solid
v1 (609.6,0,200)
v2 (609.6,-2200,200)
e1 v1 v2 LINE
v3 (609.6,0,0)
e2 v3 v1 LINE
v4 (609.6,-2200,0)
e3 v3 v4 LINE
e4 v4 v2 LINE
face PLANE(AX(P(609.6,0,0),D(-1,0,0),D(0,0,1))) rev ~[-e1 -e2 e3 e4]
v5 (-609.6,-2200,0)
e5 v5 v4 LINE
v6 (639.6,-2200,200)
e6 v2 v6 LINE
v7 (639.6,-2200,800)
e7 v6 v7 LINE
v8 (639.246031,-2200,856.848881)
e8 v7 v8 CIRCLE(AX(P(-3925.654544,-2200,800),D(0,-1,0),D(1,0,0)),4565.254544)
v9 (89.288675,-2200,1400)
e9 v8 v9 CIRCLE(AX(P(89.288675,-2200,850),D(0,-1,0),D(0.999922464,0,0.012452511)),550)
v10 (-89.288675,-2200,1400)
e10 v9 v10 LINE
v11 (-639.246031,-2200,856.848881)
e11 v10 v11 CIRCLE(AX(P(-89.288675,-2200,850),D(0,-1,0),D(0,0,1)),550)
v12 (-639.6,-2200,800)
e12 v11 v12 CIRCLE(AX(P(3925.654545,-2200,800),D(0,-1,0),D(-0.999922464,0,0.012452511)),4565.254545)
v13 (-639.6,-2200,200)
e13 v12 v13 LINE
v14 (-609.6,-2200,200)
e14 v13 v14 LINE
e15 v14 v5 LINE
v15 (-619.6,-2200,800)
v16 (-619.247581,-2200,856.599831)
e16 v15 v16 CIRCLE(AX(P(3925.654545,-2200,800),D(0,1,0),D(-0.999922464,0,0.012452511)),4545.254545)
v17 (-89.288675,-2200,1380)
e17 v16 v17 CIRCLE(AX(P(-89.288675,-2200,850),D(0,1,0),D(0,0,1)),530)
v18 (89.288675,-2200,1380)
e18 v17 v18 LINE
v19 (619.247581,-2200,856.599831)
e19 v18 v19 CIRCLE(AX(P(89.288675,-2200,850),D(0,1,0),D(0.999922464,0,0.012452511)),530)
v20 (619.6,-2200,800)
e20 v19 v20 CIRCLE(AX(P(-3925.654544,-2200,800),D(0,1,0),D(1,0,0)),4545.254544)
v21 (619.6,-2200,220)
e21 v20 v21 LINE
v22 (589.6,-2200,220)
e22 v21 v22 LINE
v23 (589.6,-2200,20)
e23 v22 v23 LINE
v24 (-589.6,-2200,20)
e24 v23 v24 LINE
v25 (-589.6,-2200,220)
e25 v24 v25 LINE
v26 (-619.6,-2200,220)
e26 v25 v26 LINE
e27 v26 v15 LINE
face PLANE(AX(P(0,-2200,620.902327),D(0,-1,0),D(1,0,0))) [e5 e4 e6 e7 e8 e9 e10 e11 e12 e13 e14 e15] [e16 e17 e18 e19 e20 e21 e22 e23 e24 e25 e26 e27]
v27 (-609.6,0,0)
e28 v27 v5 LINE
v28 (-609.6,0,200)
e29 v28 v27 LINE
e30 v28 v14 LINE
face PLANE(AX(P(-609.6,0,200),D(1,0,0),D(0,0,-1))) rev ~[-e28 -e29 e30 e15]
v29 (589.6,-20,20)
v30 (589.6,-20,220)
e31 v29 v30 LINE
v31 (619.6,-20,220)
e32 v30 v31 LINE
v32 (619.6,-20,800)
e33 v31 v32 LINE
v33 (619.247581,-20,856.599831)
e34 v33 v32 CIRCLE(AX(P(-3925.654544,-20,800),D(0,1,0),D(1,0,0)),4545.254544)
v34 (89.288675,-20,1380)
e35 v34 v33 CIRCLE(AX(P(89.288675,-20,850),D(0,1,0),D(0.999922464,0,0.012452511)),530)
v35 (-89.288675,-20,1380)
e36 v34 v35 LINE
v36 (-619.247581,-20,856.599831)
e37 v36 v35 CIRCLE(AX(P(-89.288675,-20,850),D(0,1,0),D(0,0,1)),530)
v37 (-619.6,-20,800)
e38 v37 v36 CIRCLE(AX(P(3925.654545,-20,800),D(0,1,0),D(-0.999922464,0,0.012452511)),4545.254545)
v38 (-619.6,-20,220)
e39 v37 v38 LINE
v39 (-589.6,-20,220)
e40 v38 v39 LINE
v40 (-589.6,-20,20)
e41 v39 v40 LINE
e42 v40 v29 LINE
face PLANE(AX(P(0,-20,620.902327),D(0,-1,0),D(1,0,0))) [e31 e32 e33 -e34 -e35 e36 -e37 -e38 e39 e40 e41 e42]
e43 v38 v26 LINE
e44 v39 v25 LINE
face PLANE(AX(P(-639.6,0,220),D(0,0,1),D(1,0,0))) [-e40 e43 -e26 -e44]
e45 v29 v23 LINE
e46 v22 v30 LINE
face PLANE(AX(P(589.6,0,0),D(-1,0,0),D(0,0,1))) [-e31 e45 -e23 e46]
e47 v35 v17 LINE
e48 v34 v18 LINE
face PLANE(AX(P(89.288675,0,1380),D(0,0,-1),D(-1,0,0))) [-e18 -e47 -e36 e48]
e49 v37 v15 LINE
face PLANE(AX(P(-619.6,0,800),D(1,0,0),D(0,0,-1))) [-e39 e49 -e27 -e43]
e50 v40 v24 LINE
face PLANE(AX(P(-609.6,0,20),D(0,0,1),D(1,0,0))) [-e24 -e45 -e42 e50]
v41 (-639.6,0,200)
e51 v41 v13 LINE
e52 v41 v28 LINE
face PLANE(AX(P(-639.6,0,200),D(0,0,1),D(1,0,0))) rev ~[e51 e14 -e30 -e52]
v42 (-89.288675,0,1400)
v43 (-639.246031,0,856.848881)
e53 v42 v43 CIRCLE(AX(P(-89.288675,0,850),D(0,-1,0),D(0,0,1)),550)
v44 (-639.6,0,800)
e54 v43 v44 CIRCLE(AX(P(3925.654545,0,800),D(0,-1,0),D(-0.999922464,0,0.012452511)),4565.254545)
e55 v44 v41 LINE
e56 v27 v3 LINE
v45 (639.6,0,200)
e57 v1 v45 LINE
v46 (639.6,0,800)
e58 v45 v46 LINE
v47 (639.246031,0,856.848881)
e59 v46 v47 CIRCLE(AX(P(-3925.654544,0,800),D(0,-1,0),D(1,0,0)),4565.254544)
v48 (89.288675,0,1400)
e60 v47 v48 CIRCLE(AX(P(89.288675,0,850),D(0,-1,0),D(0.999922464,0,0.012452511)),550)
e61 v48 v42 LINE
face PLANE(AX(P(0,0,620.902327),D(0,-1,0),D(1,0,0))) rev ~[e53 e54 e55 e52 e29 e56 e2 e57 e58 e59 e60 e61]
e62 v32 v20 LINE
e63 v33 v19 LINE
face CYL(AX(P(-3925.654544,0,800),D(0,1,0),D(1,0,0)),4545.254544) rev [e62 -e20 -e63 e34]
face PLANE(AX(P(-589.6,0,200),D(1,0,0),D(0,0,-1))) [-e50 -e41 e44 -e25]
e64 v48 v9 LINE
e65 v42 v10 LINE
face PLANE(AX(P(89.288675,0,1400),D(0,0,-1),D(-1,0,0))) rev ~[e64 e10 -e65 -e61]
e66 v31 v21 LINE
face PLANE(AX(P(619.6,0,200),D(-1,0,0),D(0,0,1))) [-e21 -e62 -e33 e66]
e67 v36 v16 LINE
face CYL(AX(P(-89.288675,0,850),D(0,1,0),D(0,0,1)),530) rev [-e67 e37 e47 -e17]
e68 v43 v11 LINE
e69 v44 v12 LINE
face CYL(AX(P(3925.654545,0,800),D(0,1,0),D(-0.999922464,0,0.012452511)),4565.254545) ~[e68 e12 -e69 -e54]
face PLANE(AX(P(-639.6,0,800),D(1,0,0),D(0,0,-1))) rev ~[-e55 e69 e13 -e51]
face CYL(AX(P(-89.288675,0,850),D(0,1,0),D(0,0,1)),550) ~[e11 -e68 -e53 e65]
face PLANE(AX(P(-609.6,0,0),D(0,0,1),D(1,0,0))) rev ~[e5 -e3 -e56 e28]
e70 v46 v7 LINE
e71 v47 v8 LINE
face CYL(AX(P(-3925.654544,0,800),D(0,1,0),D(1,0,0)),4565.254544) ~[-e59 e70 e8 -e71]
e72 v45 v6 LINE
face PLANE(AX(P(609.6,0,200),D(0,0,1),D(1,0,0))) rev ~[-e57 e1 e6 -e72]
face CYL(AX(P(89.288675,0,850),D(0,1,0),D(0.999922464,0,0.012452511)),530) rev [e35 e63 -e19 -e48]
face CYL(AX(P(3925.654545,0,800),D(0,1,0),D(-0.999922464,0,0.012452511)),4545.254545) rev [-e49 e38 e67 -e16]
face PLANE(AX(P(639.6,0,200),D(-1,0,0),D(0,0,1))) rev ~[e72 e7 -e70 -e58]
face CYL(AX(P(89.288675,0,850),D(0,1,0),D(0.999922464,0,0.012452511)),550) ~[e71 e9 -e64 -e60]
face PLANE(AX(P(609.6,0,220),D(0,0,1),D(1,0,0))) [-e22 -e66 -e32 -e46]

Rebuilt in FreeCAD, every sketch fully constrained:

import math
import FreeCAD as App
import Part
import Sketcher
from FreeCAD import Vector


def faces_at(feature, points):
    """Names of the faces that lie closest to the given points."""
    faces = feature.Shape.Faces
    near = lambda p: min(range(len(faces)), key=lambda i: faces[i].distToShape(Part.Vertex(*p))[0])
    return sorted({f"Face{near(p) + 1}" for p in points})

doc = App.newDocument("Part")
params = doc.addObject("Spreadsheet::Sheet", "Params")
for row, (alias, value) in enumerate([
    ("sketch1_radius", "550 mm"),
    ("sketch1_width", "30 mm"),
    ("sketch1_height", "200 mm"),
    ("sketch1_height2", "600 mm"),
    ("sketch1_width2", "1219.2 mm"),
    ("pad1_length", "2200 mm"),
    ("thickness_wall", "20 mm"),
], start=1):
    params.set(f"A{row}", alias)
    params.set(f"B{row}", "=" + value)
    params.setAlias(f"B{row}", alias)

body = doc.addObject("PartDesign::Body", "Body")

sketch1 = body.newObject("Sketcher::SketchObject", "Sketch")
sketch1.AttachmentSupport = (doc.getObject("XZ_Plane"), [""])
sketch1.MapMode = "FlatFace"
sketch1.addGeometry([
    Part.LineSegment(Vector(-610, 200, 0), Vector(-610, 0, 0)),
    Part.LineSegment(Vector(-610, 0, 0), Vector(610, 0, 0)),
    Part.LineSegment(Vector(610, 0, 0), Vector(610, 200, 0)),
    Part.LineSegment(Vector(610, 200, 0), Vector(640, 200, 0)),
    Part.LineSegment(Vector(640, 200, 0), Vector(640, 800, 0)),
    Part.ArcOfCircle(Part.Circle(Vector(-3926, 800, 0), Vector(0, 0, 1), 4565), math.radians(0), math.radians(0.71)),
    Part.ArcOfCircle(Part.Circle(Vector(89, 850, 0), Vector(0, 0, 1), 550), math.radians(1), math.radians(90)),
    Part.LineSegment(Vector(89, 1400, 0), Vector(-89, 1400, 0)),
    Part.ArcOfCircle(Part.Circle(Vector(-89, 850, 0), Vector(0, 0, 1), 550), math.radians(90), math.radians(179)),
    Part.ArcOfCircle(Part.Circle(Vector(3926, 800, 0), Vector(0, 0, 1), 4565), math.radians(179.29), math.radians(180)),
    Part.LineSegment(Vector(-640, 800, 0), Vector(-640, 200, 0)),
    Part.LineSegment(Vector(-640, 200, 0), Vector(-610, 200, 0)),
], False)
sketch1.addConstraint([
    Sketcher.Constraint("Coincident", 0, 2, 1, 1),
    Sketcher.Constraint("Coincident", 1, 2, 2, 1),
    Sketcher.Constraint("Coincident", 2, 2, 3, 1),
    Sketcher.Constraint("Coincident", 3, 2, 4, 1),
    Sketcher.Constraint("Coincident", 4, 2, 5, 1),
    Sketcher.Constraint("Tangent", 5, 2, 6, 1),
    Sketcher.Constraint("Tangent", 6, 2, 7, 1),
    Sketcher.Constraint("Tangent", 7, 2, 8, 1),
    Sketcher.Constraint("Tangent", 8, 2, 9, 1),
    Sketcher.Constraint("Tangent", 9, 2, 10, 1),
    Sketcher.Constraint("Coincident", 10, 2, 11, 1),
    Sketcher.Constraint("Coincident", 11, 2, 0, 1),
    Sketcher.Constraint("Vertical", 0),
    Sketcher.Constraint("Horizontal", 1),
    Sketcher.Constraint("Vertical", 2),
    Sketcher.Constraint("Horizontal", 3),
    Sketcher.Constraint("Vertical", 4),
    Sketcher.Constraint("Horizontal", 7),
    Sketcher.Constraint("Vertical", 10),
    Sketcher.Constraint("Horizontal", 11),
    Sketcher.Constraint("Equal", 6, 8),
    Sketcher.Constraint("Equal", 5, 9),
    Sketcher.Constraint("Symmetric", 0, 2, 1, 2, -1, 1),
    Sketcher.Constraint("Symmetric", 5, 3, 9, 3, -2),
    Sketcher.Constraint("Horizontal", 9, 3, 4, 2),
    Sketcher.Constraint("Horizontal", 3, 2, 10, 2),
    Sketcher.Constraint("Radius", 6, 550.0),
    Sketcher.Constraint("DistanceX", 3, 1, 3, 2, 30.0),
    Sketcher.Constraint("DistanceY", 0, 2, 0, 1, 200.0),
    Sketcher.Constraint("DistanceY", 4, 1, 4, 2, 600.0),
    Sketcher.Constraint("DistanceX", 1, 1, 1, 2, 1219.2),
    Sketcher.Constraint("DistanceY", -1, 1, 6, 3, 850.0),
    Sketcher.Constraint("Radius", 5, 4565.254544),
])
sketch1.setExpression("Constraints[26]", "Params.sketch1_radius")
sketch1.setExpression("Constraints[27]", "Params.sketch1_width")
sketch1.setExpression("Constraints[28]", "Params.sketch1_height")
sketch1.setExpression("Constraints[29]", "Params.sketch1_height2")
sketch1.setExpression("Constraints[30]", "Params.sketch1_width2")
pad1 = body.newObject("PartDesign::Pad", "Pad")
pad1.Profile = sketch1
pad1.setExpression("Length", "Params.pad1_length")
doc.recompute()

thickness = body.newObject("PartDesign::Thickness", "Thickness")
thickness.Base = (pad1, faces_at(pad1, [(0, -2200, 700)]))
thickness.setExpression("Value", "Params.thickness_wall")
thickness.Reversed = True
thickness.Join = "Intersection"

doc.recompute()
